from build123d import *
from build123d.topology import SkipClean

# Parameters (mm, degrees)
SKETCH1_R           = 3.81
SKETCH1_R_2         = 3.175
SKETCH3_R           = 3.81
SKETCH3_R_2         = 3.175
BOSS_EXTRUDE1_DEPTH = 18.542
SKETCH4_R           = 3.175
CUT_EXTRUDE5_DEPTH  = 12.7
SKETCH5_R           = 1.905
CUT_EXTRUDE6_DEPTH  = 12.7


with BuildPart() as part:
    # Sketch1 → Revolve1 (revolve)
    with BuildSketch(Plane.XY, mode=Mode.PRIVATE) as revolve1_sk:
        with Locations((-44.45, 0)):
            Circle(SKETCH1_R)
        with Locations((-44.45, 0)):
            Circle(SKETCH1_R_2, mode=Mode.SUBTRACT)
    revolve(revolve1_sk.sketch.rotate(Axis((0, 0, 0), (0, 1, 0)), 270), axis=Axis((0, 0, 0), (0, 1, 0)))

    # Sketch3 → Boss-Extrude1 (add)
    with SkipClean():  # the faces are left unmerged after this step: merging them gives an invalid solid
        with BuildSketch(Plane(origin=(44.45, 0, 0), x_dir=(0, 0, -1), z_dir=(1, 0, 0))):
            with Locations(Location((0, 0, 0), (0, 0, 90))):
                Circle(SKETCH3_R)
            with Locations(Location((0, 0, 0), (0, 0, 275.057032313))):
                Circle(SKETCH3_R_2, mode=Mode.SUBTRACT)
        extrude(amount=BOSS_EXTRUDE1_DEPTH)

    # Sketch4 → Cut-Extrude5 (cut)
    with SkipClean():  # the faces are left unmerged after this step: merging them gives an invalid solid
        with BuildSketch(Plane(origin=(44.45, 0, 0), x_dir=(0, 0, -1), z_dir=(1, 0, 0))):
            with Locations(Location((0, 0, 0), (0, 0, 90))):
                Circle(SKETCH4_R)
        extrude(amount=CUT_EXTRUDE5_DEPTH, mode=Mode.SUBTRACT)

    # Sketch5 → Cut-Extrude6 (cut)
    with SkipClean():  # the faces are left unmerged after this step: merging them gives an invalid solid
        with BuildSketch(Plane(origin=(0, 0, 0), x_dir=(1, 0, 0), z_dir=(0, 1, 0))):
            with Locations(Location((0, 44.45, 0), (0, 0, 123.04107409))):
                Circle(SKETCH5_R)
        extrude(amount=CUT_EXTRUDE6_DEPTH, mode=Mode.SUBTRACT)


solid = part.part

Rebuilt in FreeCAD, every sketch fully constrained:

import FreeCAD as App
import Part
import Sketcher

V = App.Vector
Q = App.Units.Quantity

doc = App.newDocument("Part")
params = doc.addObject("Spreadsheet::Sheet", "Params")
for row, (alias, value) in enumerate([
    ("sketch1_diameter", "0.3 in"),
    ("sketch1_diameter2", "0.25 in"),
    ("revolution_angle", "360 deg"),
    ("sketch2_diameter", "0.3 in"),
    ("sketch2_diameter2", "0.25 in"),
    ("pad1_length", "0.73 in"),
    ("sketch3_diameter", "0.25 in"),
    ("pocket1_length", "0.5 in"),
    ("sketch4_diameter", "0.15 in"),
    ("pocket2_length", "0.5 in"),
], start=1):
    params.set(f"A{row}", alias)
    params.set(f"B{row}", "=" + value)
    params.setAlias(f"B{row}", alias)

body = doc.addObject("PartDesign::Body", "Body")

# Sketch on XY plane
sketch1 = doc.addObject("Sketcher::SketchObject", "Sketch")
body.addObject(sketch1)
sketch1.AttachmentSupport = (doc.XY_Plane, [""])
sketch1.MapMode = "FlatFace"
sketch1.addGeometry(Part.Circle(V(-44.5, 0, 0), V(0, 0, 1), 3.8), False)
sketch1.addGeometry(Part.Circle(V(-44.5, 0, 0), V(0, 0, 1), 3.2), False)
sketch1.addConstraint(Sketcher.Constraint("Coincident", 1, 3, 0, 3))
sketch1.addConstraint(Sketcher.Constraint("PointOnObject", 0, 3, -1))
sketch1.addConstraint(Sketcher.Constraint("Diameter", 0, Q("0.3 in")))
sketch1.addConstraint(Sketcher.Constraint("Diameter", 1, Q("0.25 in")))
sketch1.addConstraint(Sketcher.Constraint("DistanceX", 0, 3, -1, 1, Q("1.75 in")))
sketch1.setExpression("Constraints[2]", "Params.sketch1_diameter")
sketch1.setExpression("Constraints[3]", "Params.sketch1_diameter2")
revolution = doc.addObject("PartDesign::Revolution", "Revolution")
body.addObject(revolution)
revolution.Profile = sketch1
revolution.ReferenceAxis = (sketch1, ["V_Axis"])
revolution.setExpression("Angle", "Params.revolution_angle")

# Sketch on YZ plane
sketch2 = doc.addObject("Sketcher::SketchObject", "Sketch001")
body.addObject(sketch2)
sketch2.AttachmentSupport = (doc.YZ_Plane, [""])
sketch2.MapMode = "FlatFace"
sketch2.AttachmentOffset = App.Placement(V(0, 0, 1.75 * 25.4), App.Rotation())
sketch2.addGeometry(Part.Circle(V(0, 0, 0), V(0, 0, 1), 3.8), False)
sketch2.addGeometry(Part.Circle(V(0, 0, 0), V(0, 0, 1), 3.2), False)
sketch2.addConstraint(Sketcher.Constraint("Coincident", 0, 3, -1, 1))
sketch2.addConstraint(Sketcher.Constraint("Coincident", 1, 3, -1, 1))
sketch2.addConstraint(Sketcher.Constraint("Diameter", 0, Q("0.3 in")))
sketch2.addConstraint(Sketcher.Constraint("Diameter", 1, Q("0.25 in")))
sketch2.setExpression("Constraints[2]", "Params.sketch2_diameter")
sketch2.setExpression("Constraints[3]", "Params.sketch2_diameter2")
pad1 = doc.addObject("PartDesign::Pad", "Pad")
body.addObject(pad1)
pad1.Profile = sketch2
pad1.setExpression("Length", "Params.pad1_length")

# Sketch on YZ plane
sketch3 = doc.addObject("Sketcher::SketchObject", "Sketch002")
body.addObject(sketch3)
sketch3.AttachmentSupport = (doc.YZ_Plane, [""])
sketch3.MapMode = "FlatFace"
sketch3.AttachmentOffset = App.Placement(V(0, 0, 1.75 * 25.4), App.Rotation())
sketch3.addGeometry(Part.Circle(V(0, 0, 0), V(0, 0, 1), 3.2), False)
sketch3.addConstraint(Sketcher.Constraint("Coincident", 0, 3, -1, 1))
sketch3.addConstraint(Sketcher.Constraint("Diameter", 0, Q("0.25 in")))
sketch3.setExpression("Constraints[1]", "Params.sketch3_diameter")
pocket1 = doc.addObject("PartDesign::Pocket", "Pocket")
body.addObject(pocket1)
pocket1.Profile = sketch3
pocket1.setExpression("Length", "Params.pocket1_length")
pocket1.Reversed = True

# Sketch on XZ plane
sketch4 = doc.addObject("Sketcher::SketchObject", "Sketch003")
body.addObject(sketch4)
sketch4.AttachmentSupport = (doc.XZ_Plane, [""])
sketch4.MapMode = "FlatFace"
sketch4.addGeometry(Part.Circle(V(0, -44.5, 0), V(0, 0, 1), 1.9), False)
sketch4.addConstraint(Sketcher.Constraint("PointOnObject", 0, 3, -2))
sketch4.addConstraint(Sketcher.Constraint("Diameter", 0, Q("0.15 in")))
sketch4.addConstraint(Sketcher.Constraint("DistanceY", 0, 3, -1, 1, Q("1.75 in")))
sketch4.setExpression("Constraints[1]", "Params.sketch4_diameter")
pocket2 = doc.addObject("PartDesign::Pocket", "Pocket001")
body.addObject(pocket2)
pocket2.Profile = sketch4
pocket2.setExpression("Length", "Params.pocket2_length")

doc.recompute()
